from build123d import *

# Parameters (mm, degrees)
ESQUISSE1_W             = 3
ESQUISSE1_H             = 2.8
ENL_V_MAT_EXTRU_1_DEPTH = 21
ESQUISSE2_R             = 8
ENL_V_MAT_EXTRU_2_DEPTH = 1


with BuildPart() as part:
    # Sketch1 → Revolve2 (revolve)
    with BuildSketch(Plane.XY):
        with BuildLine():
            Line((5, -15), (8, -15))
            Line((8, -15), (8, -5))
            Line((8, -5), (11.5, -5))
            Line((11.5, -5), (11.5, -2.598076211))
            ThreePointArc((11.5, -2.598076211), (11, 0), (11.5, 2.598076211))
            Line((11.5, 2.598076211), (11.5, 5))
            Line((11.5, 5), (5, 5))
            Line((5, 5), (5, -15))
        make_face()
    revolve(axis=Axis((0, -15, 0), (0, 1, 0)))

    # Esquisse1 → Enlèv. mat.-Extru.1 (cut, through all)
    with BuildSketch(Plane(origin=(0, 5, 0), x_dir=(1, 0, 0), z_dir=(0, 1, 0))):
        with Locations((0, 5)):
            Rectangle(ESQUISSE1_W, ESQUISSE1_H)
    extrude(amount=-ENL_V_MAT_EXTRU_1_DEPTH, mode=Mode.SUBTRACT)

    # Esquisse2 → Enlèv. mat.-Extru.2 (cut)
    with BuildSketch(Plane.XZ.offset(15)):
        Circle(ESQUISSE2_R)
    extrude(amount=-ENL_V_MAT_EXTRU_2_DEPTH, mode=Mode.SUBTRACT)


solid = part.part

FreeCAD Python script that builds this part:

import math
import FreeCAD as App
import Part
import Sketcher
Q = App.Units.Quantity

doc = App.newDocument("Part")
params = doc.addObject("Spreadsheet::Sheet", "Params")
for row, (alias, value) in enumerate([
    ("sketch1_radius", "7 mm"),
    ("sketch1_width", "3 mm"),
    ("sketch1_height", "10 mm"),
    ("sketch1_height2", "20 mm"),
    ("sketch1_width2", "3.5 mm"),
    ("revolution_angle", "360 deg"),
    ("sketch2_width", "3 mm"),
    ("sketch2_height", "2.8 mm"),
    ("sketch3_diameter", "16 mm"),
    ("pocket2_length", "1 mm"),
], start=1):
    params.set(f"A{row}", alias)
    params.set(f"B{row}", "=" + value)
    params.setAlias(f"B{row}", alias)

body = doc.addObject("PartDesign::Body", "Body")

# Sketch on XY plane
sketch1 = body.newObject("Sketcher::SketchObject", "Sketch")
sketch1.AttachmentSupport = (doc.getObject("XY_Plane"), [""])
sketch1.MapMode = "FlatFace"
sketch1.addGeometry(Part.LineSegment(App.Vector(5, -15, 0), App.Vector(8, -15, 0)), False)
sketch1.addGeometry(Part.LineSegment(App.Vector(8, -15, 0), App.Vector(8, -5, 0)), False)
sketch1.addGeometry(Part.LineSegment(App.Vector(8, -5, 0), App.Vector(11.5, -5, 0)), False)
sketch1.addGeometry(Part.LineSegment(App.Vector(11.5, -5, 0), App.Vector(11.5, -2.598076, 0)), False)
sketch1.addGeometry(Part.ArcOfCircle(Part.Circle(App.Vector(18, 0, 0), App.Vector(0, 0, 1), 7), math.radians(158.213211), math.radians(201.786789)), False)
sketch1.addGeometry(Part.LineSegment(App.Vector(11.5, 2.598076, 0), App.Vector(11.5, 5, 0)), False)
sketch1.addGeometry(Part.LineSegment(App.Vector(11.5, 5, 0), App.Vector(5, 5, 0)), False)
sketch1.addGeometry(Part.LineSegment(App.Vector(5, 5, 0), App.Vector(5, -15, 0)), False)
sketch1.addConstraint(Sketcher.Constraint("Coincident", 0, 2, 1, 1))
sketch1.addConstraint(Sketcher.Constraint("Coincident", 1, 2, 2, 1))
sketch1.addConstraint(Sketcher.Constraint("Coincident", 2, 2, 3, 1))
sketch1.addConstraint(Sketcher.Constraint("Coincident", 3, 2, 4, 2))
sketch1.addConstraint(Sketcher.Constraint("Coincident", 4, 1, 5, 1))
sketch1.addConstraint(Sketcher.Constraint("Coincident", 5, 2, 6, 1))
sketch1.addConstraint(Sketcher.Constraint("Coincident", 6, 2, 7, 1))
sketch1.addConstraint(Sketcher.Constraint("Coincident", 7, 2, 0, 1))
sketch1.addConstraint(Sketcher.Constraint("Horizontal", 0))
sketch1.addConstraint(Sketcher.Constraint("Vertical", 1))
sketch1.addConstraint(Sketcher.Constraint("Horizontal", 2))
sketch1.addConstraint(Sketcher.Constraint("Vertical", 3))
sketch1.addConstraint(Sketcher.Constraint("Vertical", 5))
sketch1.addConstraint(Sketcher.Constraint("Horizontal", 6))
sketch1.addConstraint(Sketcher.Constraint("Vertical", 7))
sketch1.addConstraint(Sketcher.Constraint("Symmetric", 3, 2, 4, 1, -1))
sketch1.addConstraint(Sketcher.Constraint("Equal", 3, 5))
sketch1.addConstraint(Sketcher.Constraint("Radius", 4, Q("7 mm")))
sketch1.addConstraint(Sketcher.Constraint("DistanceX", 0, 1, 0, 2, Q("3 mm")))
sketch1.addConstraint(Sketcher.Constraint("DistanceY", 1, 1, 1, 2, Q("10 mm")))
sketch1.addConstraint(Sketcher.Constraint("DistanceY", 7, 2, 7, 1, Q("20 mm")))
sketch1.addConstraint(Sketcher.Constraint("DistanceX", 2, 1, 2, 2, Q("3.5 mm")))
sketch1.addConstraint(Sketcher.Constraint("DistanceX", -1, 1, 4, 3, Q("18 mm")))
sketch1.addConstraint(Sketcher.Constraint("DistanceX", -1, 1, 0, 2, Q("8 mm")))
sketch1.setExpression("Constraints[17]", "Params.sketch1_radius")
sketch1.setExpression("Constraints[18]", "Params.sketch1_width")
sketch1.setExpression("Constraints[19]", "Params.sketch1_height")
sketch1.setExpression("Constraints[20]", "Params.sketch1_height2")
sketch1.setExpression("Constraints[21]", "Params.sketch1_width2")
revolution = body.newObject("PartDesign::Revolution", "Revolution")
revolution.Profile = sketch1
revolution.ReferenceAxis = (sketch1, ["V_Axis"])
revolution.setExpression("Angle", "Params.revolution_angle")

# Sketch on XZ plane
sketch2 = body.newObject("Sketcher::SketchObject", "Sketch001")
sketch2.AttachmentSupport = (doc.getObject("XZ_Plane"), [""])
sketch2.MapMode = "FlatFace"
sketch2.AttachmentOffset = App.Placement(App.Vector(0, 0, -5), App.Rotation())
sketch2.addGeometry(Part.LineSegment(App.Vector(-1.5, -6.4, 0), App.Vector(-1.5, -3.6, 0)), False)
sketch2.addGeometry(Part.LineSegment(App.Vector(-1.5, -3.6, 0), App.Vector(1.5, -3.6, 0)), False)
sketch2.addGeometry(Part.LineSegment(App.Vector(1.5, -3.6, 0), App.Vector(1.5, -6.4, 0)), False)
sketch2.addGeometry(Part.LineSegment(App.Vector(1.5, -6.4, 0), App.Vector(-1.5, -6.4, 0)), False)
sketch2.addConstraint(Sketcher.Constraint("Coincident", 0, 2, 1, 1))
sketch2.addConstraint(Sketcher.Constraint("Coincident", 1, 2, 2, 1))
sketch2.addConstraint(Sketcher.Constraint("Coincident", 2, 2, 3, 1))
sketch2.addConstraint(Sketcher.Constraint("Coincident", 3, 2, 0, 1))
sketch2.addConstraint(Sketcher.Constraint("Vertical", 0))
sketch2.addConstraint(Sketcher.Constraint("Horizontal", 1))
sketch2.addConstraint(Sketcher.Constraint("Vertical", 2))
sketch2.addConstraint(Sketcher.Constraint("Horizontal", 3))
sketch2.addConstraint(Sketcher.Constraint("DistanceX", 1, 1, 1, 2, Q("3 mm")))
sketch2.addConstraint(Sketcher.Constraint("DistanceY", 0, 1, 0, 2, Q("2.8 mm")))
sketch2.addConstraint(Sketcher.Constraint("DistanceX", 0, 2, -1, 1, Q("1.5 mm")))
sketch2.addConstraint(Sketcher.Constraint("DistanceY", 0, 2, -1, 1, Q("3.6 mm")))
sketch2.setExpression("Constraints[8]", "Params.sketch2_width")
sketch2.setExpression("Constraints[9]", "Params.sketch2_height")
pocket1 = body.newObject("PartDesign::Pocket", "Pocket")
pocket1.Profile = sketch2
pocket1.Type = "ThroughAll"
pocket1.Reversed = True

# Sketch on XZ plane
sketch3 = body.newObject("Sketcher::SketchObject", "Sketch002")
sketch3.AttachmentSupport = (doc.getObject("XZ_Plane"), [""])
sketch3.MapMode = "FlatFace"
sketch3.AttachmentOffset = App.Placement(App.Vector(0, 0, 15), App.Rotation())
sketch3.addGeometry(Part.Circle(App.Vector(0, 0, 0), App.Vector(0, 0, 1), 8), False)
sketch3.addConstraint(Sketcher.Constraint("Coincident", 0, 3, -1, 1))
sketch3.addConstraint(Sketcher.Constraint("Diameter", 0, Q("16 mm")))
sketch3.setExpression("Constraints[1]", "Params.sketch3_diameter")
pocket2 = body.newObject("PartDesign::Pocket", "Pocket001")
pocket2.Profile = sketch3
pocket2.setExpression("Length", "Params.pocket2_length")

doc.recompute()
